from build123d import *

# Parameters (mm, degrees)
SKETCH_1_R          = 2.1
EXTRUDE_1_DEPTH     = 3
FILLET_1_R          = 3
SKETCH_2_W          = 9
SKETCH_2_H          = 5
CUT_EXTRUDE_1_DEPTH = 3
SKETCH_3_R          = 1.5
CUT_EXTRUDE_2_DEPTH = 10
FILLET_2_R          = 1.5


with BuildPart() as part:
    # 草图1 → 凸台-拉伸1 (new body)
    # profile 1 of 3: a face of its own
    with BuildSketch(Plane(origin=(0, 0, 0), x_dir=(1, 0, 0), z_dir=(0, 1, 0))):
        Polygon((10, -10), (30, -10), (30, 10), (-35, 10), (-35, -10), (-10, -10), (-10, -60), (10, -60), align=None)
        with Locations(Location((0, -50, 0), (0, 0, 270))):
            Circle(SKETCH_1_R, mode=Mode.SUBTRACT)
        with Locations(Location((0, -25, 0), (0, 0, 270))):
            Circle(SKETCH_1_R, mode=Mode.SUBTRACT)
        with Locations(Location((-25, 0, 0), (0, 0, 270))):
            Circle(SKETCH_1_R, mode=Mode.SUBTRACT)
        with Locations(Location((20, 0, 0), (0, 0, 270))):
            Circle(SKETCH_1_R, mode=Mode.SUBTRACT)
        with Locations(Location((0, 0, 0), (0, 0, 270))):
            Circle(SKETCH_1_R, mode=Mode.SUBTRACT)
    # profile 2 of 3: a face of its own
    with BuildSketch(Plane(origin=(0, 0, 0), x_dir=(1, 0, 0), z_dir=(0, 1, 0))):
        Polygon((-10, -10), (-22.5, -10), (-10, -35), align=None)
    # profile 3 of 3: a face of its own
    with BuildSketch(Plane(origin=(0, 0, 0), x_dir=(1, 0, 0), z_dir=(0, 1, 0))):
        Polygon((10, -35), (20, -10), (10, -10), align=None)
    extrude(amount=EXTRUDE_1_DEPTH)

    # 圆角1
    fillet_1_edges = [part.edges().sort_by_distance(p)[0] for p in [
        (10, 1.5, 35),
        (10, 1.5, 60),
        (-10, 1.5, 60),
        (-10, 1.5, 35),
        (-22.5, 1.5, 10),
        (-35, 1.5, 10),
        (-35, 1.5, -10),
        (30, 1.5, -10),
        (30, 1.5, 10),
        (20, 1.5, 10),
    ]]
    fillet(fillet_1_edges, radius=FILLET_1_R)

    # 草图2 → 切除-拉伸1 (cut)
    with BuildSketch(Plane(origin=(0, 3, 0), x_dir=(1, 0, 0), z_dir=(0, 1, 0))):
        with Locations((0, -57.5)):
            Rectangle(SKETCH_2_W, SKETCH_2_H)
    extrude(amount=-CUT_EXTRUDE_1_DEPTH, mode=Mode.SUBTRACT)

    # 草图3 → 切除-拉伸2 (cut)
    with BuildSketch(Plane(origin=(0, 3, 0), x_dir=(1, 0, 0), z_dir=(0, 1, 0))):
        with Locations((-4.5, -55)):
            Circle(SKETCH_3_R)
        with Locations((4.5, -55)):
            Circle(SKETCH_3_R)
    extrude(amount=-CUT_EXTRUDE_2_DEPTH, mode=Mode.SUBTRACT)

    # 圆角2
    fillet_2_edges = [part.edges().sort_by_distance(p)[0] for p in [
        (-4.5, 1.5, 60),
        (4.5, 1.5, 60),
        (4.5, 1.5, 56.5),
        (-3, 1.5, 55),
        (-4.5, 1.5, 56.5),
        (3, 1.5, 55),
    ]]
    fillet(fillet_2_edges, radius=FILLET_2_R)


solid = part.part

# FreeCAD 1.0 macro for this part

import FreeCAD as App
import Part
import Sketcher
from FreeCAD import Vector
Q = App.Units.Quantity


def edges_at(feature, points):
    """Names of the edges that pass closest to the given points."""
    edges = feature.Shape.Edges
    near = lambda p: min(range(len(edges)), key=lambda i: edges[i].distToShape(Part.Vertex(*p))[0])
    return sorted({f"Edge{near(p) + 1}" for p in points})


def add_polygon(sketch, points):
    """Adds a closed chain of lines whose ends are joined by coincident constraints."""
    first, n = sketch.GeometryCount, len(points)
    for a, b in zip(points, points[1:] + points[:1]):
        sketch.addGeometry(Part.LineSegment(App.Vector(*a, 0), App.Vector(*b, 0)), False)
    for i in range(n):
        sketch.addConstraint(Sketcher.Constraint("Coincident", first + i, 2, first + (i + 1) % n, 1))

doc = App.newDocument("Part")
body = doc.addObject("PartDesign::Body", "Body")

# Sketch on XZ plane
sketch1 = body.newObject("Sketcher::SketchObject", "Sketch")
sketch1.AttachmentSupport = (doc.getObject("XZ_Plane"), [""])
sketch1.MapMode = "FlatFace"
add_polygon(sketch1, [(20, 10), (30, 10), (30, -10), (-35, -10), (-35, 10), (-22.5, 10), (-10, 35), (-10, 60), (10, 60), (10, 35)])  # lines 0-9
sketch1.addGeometry(Part.Circle(Vector(0, 50, 0), Vector(0, 0, 1), 2.1), False)  # 10
sketch1.addGeometry(Part.Circle(Vector(0, 25, 0), Vector(0, 0, 1), 2.1), False)  # 11
sketch1.addGeometry(Part.Circle(Vector(-25, 0, 0), Vector(0, 0, 1), 2.1), False)  # 12
sketch1.addGeometry(Part.Circle(Vector(0, 0, 0), Vector(0, 0, 1), 2.1), False)  # 13
sketch1.addGeometry(Part.Circle(Vector(20, 0, 0), Vector(0, 0, 1), 2.1), False)  # 14
sketch1.addConstraint([
    Sketcher.Constraint("Horizontal", 0),
    Sketcher.Constraint("Vertical", 1),
    Sketcher.Constraint("Horizontal", 2),
    Sketcher.Constraint("Vertical", 3),
    Sketcher.Constraint("Horizontal", 4),
    Sketcher.Constraint("Vertical", 6),
    Sketcher.Constraint("Horizontal", 7),
    Sketcher.Constraint("Vertical", 8),
    Sketcher.Constraint("Coincident", 13, 3, -1, 1),
    Sketcher.Constraint("Equal", 10, 11),
    Sketcher.Constraint("Equal", 11, 12),
    Sketcher.Constraint("Equal", 12, 13),
    Sketcher.Constraint("Equal", 13, 14),
    Sketcher.Constraint("Symmetric", 5, 2, 8, 2, -2),
    Sketcher.Constraint("PointOnObject", 10, 3, -2),
    Sketcher.Constraint("PointOnObject", 11, 3, -2),
    Sketcher.Constraint("PointOnObject", 12, 3, -1),
    Sketcher.Constraint("PointOnObject", 14, 3, -1),
    Sketcher.Constraint("Horizontal", 0, 2, 3, 2),
    Sketcher.Constraint("Vertical", 14, 3, 9, 2),
    Sketcher.Constraint("Equal", 7, 1),
    Sketcher.Constraint("Diameter", 10, Q("4.2 mm")),
    Sketcher.Constraint("DistanceX", 0, 1, 0, 2, Q("10 mm")),
    Sketcher.Constraint("DistanceX", 2, 2, 2, 1, Q("65 mm")),
    Sketcher.Constraint("DistanceX", 7, 1, 7, 2, Q("20 mm")),
    Sketcher.Constraint("DistanceY", 6, 1, 6, 2, Q("25 mm")),
    Sketcher.Constraint("DistanceX", 4, 1, 4, 2, Q("12.5 mm")),
    Sketcher.Constraint("DistanceY", -1, 1, 10, 3, Q("50 mm")),
    Sketcher.Constraint("DistanceY", -1, 1, 11, 3, Q("25 mm")),
    Sketcher.Constraint("DistanceX", 12, 3, -1, 1, Q("25 mm")),
    Sketcher.Constraint("DistanceX", -1, 1, 14, 3, Q("20 mm")),
    Sketcher.Constraint("DistanceY", -1, 1, 0, 2, Q("10 mm")),
    Sketcher.Constraint("DistanceY", -1, 1, 5, 2, Q("35 mm")),
])
pad1 = body.newObject("PartDesign::Pad", "Pad")
pad1.Profile = sketch1
pad1.Length = 3
pad1.Reversed = True
doc.recompute()

fillet = body.newObject("PartDesign::Fillet", "Fillet")
fillet.Base = (pad1, edges_at(pad1, [
    (10, 1.5, 35),
    (10, 1.5, 60),
    (-10, 1.5, 60),
    (-10, 1.5, 35),
    (-22.5, 1.5, 10),
    (-35, 1.5, 10),
    (-35, 1.5, -10),
    (30, 1.5, -10),
    (30, 1.5, 10),
    (20, 1.5, 10),
]))
fillet.Radius = 3

# Sketch on XZ plane
sketch2 = body.newObject("Sketcher::SketchObject", "Sketch001")
sketch2.AttachmentSupport = (doc.getObject("XZ_Plane"), [""])
sketch2.MapMode = "FlatFace"
sketch2.AttachmentOffset = App.Placement(Vector(0, 0, -3), App.Rotation())
add_polygon(sketch2, [(-4.5, 55), (-4.5, 60), (4.5, 60), (4.5, 55)])  # lines 0-3
sketch2.addConstraint([
    Sketcher.Constraint("Vertical", 0),
    Sketcher.Constraint("Horizontal", 1),
    Sketcher.Constraint("Vertical", 2),
    Sketcher.Constraint("Horizontal", 3),
    Sketcher.Constraint("DistanceX", 1, 1, 1, 2, Q("9 mm")),
    Sketcher.Constraint("DistanceY", 0, 1, 0, 2, Q("5 mm")),
    Sketcher.Constraint("DistanceY", -1, 1, 0, 2, Q("60 mm")),
    Sketcher.Constraint("DistanceX", 0, 2, -1, 1, Q("4.5 mm")),
])
pocket1 = body.newObject("PartDesign::Pocket", "Pocket")
pocket1.Profile = sketch2
pocket1.Length = 3
pocket1.Reversed = True

# Sketch on XZ plane
sketch3 = body.newObject("Sketcher::SketchObject", "Sketch002")
sketch3.AttachmentSupport = (doc.getObject("XZ_Plane"), [""])
sketch3.MapMode = "FlatFace"
sketch3.AttachmentOffset = App.Placement(Vector(0, 0, -3), App.Rotation())
sketch3.addGeometry([
    Part.Circle(Vector(-4.5, 55, 0), Vector(0, 0, 1), 1.5),
    Part.Circle(Vector(4.5, 55, 0), Vector(0, 0, 1), 1.5),
], False)
sketch3.addConstraint([
    Sketcher.Constraint("Equal", 0, 1),
    Sketcher.Constraint("Symmetric", 0, 3, 1, 3, -2),
    Sketcher.Constraint("Diameter", 0, Q("3 mm")),
    Sketcher.Constraint("DistanceY", -1, 1, 0, 3, Q("55 mm")),
    Sketcher.Constraint("DistanceX", 0, 3, 1, 3, Q("9 mm")),
])
pocket2 = body.newObject("PartDesign::Pocket", "Pocket001")
pocket2.Profile = sketch3
pocket2.Length = 10
pocket2.Reversed = True
doc.recompute()

fillet2 = body.newObject("PartDesign::Fillet", "Fillet001")
fillet2.Base = (pocket2, edges_at(pocket2, [
    (-4.5, 1.5, 60),
    (4.5, 1.5, 60),
    (4.5, 1.5, 56.5),
    (-3, 1.5, 55),
    (-4.5, 1.5, 56.5),
    (3, 1.5, 55),
]))
fillet2.Radius = 1.5

doc.recompute()
